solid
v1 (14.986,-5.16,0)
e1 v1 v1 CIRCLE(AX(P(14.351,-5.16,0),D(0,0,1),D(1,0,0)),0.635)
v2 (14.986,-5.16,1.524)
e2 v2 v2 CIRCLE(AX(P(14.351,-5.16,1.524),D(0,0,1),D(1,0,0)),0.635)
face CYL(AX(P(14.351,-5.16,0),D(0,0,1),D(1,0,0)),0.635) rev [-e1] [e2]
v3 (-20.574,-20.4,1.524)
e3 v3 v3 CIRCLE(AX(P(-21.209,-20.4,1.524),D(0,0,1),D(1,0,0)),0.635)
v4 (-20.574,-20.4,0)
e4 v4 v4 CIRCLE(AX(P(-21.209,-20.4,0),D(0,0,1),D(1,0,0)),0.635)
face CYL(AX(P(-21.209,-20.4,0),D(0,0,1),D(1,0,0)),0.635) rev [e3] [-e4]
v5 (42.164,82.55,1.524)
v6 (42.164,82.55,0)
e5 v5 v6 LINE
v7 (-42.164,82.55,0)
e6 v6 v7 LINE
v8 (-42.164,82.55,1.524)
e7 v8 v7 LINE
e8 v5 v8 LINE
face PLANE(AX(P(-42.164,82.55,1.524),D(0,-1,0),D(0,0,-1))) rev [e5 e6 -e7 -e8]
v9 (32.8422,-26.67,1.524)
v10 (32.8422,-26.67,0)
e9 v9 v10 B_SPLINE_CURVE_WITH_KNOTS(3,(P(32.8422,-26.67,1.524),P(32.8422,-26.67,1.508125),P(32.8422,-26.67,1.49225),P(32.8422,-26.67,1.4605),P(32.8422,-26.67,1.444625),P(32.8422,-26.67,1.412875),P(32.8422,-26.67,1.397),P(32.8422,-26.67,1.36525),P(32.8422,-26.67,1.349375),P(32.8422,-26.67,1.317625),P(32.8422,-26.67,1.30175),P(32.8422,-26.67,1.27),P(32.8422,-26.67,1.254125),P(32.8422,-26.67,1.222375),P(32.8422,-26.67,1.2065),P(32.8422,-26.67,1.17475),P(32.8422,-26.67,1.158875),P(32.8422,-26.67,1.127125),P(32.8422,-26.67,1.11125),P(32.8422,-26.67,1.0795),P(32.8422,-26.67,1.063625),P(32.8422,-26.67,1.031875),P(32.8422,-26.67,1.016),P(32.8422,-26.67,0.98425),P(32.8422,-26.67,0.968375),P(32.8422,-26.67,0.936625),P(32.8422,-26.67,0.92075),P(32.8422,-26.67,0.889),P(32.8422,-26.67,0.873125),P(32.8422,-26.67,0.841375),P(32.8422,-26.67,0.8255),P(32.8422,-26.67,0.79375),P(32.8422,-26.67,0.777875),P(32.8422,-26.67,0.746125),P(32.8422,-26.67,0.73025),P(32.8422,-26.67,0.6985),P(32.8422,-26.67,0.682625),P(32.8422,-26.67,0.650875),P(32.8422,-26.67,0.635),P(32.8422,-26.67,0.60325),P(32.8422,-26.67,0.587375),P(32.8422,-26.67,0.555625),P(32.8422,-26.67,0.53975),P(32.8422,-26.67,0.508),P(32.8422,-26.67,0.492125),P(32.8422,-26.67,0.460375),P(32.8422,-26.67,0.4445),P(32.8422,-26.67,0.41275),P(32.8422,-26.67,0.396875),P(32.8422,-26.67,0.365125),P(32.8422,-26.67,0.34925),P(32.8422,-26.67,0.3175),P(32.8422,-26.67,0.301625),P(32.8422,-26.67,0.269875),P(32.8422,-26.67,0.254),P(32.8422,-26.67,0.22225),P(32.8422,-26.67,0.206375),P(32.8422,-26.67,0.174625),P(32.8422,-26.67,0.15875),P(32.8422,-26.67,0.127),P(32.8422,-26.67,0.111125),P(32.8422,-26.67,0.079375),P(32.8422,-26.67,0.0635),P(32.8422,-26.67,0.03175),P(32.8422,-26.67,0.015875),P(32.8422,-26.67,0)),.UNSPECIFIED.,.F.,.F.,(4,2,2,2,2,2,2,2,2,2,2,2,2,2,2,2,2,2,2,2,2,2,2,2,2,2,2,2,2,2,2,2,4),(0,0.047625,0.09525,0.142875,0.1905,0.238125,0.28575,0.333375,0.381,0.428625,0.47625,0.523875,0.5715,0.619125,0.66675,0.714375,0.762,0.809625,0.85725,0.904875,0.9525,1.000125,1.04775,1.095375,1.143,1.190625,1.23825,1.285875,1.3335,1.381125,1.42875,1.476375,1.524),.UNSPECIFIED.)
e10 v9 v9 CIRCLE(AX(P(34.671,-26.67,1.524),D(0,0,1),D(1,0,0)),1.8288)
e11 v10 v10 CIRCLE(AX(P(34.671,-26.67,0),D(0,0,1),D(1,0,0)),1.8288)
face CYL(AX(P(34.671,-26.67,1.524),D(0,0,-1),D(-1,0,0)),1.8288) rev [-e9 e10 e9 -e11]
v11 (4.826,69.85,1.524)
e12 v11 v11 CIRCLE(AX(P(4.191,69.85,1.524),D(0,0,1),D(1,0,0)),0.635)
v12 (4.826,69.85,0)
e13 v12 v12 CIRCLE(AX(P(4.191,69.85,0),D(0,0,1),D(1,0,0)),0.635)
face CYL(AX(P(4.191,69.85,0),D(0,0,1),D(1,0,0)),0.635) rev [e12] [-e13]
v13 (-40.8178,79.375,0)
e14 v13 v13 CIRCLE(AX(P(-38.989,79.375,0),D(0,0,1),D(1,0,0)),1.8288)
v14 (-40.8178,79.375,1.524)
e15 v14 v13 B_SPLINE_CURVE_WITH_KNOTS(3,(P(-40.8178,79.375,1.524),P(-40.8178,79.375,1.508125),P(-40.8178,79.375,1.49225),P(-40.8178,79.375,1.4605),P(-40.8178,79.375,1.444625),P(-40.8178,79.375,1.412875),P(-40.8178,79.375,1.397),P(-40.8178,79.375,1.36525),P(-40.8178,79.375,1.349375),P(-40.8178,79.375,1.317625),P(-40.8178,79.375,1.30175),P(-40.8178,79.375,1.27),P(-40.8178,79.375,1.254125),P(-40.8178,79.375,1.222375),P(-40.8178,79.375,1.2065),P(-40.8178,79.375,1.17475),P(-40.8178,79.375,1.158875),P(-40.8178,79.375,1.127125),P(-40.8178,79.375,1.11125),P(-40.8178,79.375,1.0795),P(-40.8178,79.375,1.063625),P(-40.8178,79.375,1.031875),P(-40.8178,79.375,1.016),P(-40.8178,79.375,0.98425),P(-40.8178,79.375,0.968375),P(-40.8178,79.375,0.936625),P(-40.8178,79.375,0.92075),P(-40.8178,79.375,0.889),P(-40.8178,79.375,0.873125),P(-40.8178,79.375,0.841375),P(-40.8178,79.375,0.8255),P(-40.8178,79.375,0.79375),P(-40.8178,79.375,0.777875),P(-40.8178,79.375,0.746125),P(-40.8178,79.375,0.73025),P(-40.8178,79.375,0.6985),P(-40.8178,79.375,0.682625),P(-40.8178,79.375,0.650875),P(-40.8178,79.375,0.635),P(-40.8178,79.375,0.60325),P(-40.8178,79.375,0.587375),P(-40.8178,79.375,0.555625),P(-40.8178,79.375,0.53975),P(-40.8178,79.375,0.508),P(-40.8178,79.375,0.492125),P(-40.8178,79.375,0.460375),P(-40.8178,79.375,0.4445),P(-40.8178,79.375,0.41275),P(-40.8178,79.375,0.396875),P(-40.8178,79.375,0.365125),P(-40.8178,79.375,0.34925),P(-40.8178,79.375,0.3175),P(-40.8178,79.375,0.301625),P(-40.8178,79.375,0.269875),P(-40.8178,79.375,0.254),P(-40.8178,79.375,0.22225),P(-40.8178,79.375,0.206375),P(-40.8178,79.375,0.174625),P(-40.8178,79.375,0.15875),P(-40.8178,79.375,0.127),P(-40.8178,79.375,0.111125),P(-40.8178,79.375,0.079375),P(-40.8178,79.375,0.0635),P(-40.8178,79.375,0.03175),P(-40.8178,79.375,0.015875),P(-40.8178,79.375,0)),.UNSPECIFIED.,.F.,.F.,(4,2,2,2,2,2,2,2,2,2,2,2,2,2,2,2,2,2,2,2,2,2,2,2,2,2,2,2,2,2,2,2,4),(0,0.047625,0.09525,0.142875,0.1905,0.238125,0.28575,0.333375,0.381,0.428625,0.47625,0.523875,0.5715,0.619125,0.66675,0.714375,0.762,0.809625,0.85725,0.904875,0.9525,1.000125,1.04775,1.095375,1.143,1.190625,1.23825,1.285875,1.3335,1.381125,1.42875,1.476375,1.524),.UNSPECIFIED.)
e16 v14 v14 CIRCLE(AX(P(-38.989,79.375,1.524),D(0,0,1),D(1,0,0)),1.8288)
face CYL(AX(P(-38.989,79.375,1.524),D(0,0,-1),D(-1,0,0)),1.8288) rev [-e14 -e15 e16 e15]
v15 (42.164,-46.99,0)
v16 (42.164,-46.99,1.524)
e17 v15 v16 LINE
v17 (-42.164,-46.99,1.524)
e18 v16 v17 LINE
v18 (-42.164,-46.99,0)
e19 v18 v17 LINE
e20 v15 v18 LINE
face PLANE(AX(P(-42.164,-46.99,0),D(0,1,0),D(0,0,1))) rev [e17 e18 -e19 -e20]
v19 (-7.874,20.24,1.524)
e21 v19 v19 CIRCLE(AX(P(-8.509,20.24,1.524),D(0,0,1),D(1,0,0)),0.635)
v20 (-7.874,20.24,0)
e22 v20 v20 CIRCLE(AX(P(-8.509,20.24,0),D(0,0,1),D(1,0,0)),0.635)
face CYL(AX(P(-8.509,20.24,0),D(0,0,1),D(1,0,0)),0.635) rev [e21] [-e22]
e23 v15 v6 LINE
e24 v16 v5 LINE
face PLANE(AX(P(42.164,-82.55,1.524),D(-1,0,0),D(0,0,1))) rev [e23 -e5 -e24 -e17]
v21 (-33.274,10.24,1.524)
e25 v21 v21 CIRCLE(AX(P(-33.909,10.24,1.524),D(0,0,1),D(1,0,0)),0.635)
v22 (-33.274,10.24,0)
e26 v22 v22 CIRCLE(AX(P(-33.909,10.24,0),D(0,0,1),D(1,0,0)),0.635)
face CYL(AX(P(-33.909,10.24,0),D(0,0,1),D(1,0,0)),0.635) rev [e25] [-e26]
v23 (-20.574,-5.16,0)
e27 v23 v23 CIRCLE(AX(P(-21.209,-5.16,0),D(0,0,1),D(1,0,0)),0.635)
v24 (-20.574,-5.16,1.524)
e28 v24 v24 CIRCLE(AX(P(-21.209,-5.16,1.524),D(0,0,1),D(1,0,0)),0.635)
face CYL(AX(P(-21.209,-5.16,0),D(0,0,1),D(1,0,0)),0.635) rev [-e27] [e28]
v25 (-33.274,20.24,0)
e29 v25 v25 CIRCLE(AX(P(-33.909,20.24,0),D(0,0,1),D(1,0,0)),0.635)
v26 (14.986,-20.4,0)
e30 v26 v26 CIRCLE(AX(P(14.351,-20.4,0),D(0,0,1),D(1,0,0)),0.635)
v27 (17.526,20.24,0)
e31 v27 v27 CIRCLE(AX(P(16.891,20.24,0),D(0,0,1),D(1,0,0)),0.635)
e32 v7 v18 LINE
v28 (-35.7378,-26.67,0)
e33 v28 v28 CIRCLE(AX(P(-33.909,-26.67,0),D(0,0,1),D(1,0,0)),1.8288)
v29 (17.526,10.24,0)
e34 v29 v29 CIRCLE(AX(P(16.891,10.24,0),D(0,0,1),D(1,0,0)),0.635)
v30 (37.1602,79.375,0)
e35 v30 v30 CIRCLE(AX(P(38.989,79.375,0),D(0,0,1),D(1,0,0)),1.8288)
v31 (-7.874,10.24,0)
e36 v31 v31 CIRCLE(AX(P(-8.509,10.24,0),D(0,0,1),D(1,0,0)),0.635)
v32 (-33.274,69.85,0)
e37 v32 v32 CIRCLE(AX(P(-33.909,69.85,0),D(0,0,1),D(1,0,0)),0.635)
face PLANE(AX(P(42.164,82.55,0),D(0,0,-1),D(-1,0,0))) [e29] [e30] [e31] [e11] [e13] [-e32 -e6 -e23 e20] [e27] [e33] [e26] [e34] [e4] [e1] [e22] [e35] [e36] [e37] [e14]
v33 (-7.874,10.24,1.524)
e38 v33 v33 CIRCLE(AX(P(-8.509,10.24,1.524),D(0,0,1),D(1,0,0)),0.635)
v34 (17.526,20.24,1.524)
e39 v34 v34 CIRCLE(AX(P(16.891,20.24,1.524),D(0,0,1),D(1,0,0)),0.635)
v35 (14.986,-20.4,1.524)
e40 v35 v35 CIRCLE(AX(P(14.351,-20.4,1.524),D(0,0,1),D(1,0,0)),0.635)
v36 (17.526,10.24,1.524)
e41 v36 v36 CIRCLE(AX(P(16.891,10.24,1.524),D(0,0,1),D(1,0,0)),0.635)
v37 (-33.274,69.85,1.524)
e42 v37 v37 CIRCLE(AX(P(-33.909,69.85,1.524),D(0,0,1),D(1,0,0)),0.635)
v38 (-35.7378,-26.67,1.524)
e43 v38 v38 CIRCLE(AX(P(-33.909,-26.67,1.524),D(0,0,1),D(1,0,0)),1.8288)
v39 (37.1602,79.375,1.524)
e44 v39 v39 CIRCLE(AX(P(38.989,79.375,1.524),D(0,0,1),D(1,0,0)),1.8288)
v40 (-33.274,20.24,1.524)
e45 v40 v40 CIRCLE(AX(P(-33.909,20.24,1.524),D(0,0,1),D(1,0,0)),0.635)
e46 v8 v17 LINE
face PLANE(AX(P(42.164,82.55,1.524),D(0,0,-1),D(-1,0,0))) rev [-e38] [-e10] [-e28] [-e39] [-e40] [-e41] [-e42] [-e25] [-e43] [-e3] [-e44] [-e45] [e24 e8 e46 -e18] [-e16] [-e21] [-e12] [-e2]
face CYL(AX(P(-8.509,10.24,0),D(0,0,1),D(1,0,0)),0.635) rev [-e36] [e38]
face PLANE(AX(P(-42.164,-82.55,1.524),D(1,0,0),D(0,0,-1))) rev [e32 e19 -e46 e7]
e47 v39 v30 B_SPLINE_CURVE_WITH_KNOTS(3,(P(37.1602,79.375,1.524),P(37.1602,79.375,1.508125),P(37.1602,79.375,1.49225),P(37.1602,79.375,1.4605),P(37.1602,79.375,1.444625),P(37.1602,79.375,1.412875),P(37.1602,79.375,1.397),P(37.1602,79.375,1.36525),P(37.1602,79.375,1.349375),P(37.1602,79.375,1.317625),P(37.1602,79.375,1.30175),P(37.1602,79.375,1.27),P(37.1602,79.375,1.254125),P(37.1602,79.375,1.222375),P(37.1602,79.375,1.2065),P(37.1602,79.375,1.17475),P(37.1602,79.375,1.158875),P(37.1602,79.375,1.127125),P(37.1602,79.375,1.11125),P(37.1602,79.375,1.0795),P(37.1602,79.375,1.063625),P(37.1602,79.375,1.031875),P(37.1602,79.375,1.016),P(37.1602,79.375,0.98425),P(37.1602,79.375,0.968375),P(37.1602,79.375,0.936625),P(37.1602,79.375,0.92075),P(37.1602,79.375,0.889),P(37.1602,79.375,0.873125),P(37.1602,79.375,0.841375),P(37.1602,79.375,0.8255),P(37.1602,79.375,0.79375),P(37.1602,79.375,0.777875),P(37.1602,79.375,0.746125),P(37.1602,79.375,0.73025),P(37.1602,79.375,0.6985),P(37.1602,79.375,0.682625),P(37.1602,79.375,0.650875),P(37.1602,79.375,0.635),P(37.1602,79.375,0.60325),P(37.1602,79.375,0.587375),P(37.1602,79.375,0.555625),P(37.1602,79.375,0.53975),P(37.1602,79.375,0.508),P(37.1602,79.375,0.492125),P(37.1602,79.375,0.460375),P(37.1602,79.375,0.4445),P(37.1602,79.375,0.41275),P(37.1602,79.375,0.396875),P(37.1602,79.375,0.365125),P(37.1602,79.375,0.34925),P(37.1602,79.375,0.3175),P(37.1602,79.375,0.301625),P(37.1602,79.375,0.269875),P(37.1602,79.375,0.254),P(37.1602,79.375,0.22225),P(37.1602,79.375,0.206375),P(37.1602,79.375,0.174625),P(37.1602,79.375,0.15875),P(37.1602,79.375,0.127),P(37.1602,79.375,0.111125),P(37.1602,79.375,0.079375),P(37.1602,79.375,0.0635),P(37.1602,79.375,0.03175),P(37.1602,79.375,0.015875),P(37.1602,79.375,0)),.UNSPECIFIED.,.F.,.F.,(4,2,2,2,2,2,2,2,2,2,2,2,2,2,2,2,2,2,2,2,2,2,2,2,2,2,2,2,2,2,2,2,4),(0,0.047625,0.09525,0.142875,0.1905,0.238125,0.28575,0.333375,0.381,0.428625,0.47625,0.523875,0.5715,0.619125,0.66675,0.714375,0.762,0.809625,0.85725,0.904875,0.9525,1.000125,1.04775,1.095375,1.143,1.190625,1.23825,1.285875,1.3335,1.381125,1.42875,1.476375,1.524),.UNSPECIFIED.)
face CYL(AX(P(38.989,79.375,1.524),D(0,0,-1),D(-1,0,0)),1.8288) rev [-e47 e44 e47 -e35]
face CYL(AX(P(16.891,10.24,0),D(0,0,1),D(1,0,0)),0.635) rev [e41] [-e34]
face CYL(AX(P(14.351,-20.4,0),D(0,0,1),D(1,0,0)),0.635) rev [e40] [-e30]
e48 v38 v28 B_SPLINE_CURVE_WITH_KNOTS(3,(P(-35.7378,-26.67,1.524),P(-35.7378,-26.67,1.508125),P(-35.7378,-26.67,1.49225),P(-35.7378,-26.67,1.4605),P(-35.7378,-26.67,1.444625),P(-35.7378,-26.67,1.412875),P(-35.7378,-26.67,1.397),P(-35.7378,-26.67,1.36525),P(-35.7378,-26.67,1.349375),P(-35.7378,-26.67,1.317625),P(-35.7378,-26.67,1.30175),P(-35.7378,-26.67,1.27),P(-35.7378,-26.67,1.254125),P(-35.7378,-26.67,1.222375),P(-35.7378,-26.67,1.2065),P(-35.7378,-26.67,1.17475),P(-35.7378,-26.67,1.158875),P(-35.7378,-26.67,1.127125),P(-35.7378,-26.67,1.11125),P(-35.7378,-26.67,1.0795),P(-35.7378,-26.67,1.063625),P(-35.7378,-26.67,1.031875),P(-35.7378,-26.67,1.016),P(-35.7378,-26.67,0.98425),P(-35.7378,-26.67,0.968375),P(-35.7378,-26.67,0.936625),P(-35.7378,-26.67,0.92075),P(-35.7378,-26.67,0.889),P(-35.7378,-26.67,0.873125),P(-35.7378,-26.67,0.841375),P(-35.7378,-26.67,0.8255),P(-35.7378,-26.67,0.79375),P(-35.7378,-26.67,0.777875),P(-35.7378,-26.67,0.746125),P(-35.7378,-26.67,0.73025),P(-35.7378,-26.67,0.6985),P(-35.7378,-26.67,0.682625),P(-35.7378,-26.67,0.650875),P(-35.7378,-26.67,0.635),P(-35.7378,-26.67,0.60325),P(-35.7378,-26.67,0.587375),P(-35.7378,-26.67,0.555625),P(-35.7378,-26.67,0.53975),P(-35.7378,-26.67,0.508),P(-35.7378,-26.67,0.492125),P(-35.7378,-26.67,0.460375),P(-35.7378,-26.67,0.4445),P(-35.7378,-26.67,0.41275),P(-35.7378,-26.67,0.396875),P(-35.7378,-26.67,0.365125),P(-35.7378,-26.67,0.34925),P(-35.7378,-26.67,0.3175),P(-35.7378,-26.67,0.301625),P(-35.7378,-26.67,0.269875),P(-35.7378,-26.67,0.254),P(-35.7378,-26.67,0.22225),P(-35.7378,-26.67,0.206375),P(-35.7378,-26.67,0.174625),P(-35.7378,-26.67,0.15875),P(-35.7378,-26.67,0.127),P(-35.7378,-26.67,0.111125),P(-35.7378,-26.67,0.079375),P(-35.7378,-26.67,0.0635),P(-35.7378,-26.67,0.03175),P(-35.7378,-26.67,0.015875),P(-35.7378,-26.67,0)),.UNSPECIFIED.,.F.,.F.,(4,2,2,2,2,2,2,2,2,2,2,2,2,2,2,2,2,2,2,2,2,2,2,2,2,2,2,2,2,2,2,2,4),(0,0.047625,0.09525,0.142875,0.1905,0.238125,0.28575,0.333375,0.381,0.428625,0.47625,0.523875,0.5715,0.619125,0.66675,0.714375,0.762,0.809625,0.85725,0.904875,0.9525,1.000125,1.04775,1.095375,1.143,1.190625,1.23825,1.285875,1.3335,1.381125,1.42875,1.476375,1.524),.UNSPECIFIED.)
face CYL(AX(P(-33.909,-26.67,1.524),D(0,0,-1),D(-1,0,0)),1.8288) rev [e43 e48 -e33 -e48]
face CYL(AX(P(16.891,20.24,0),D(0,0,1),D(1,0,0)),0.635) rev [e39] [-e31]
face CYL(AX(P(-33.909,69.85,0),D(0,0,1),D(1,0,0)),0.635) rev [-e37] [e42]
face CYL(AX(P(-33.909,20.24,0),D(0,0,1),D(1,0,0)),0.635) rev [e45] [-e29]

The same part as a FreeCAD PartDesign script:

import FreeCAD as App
import Part
import Sketcher
from FreeCAD import Vector
Q = App.Units.Quantity

doc = App.newDocument("Part")
body = doc.addObject("PartDesign::Body", "Body")

# Sketch on XY plane
sketch1 = body.newObject("Sketcher::SketchObject", "Sketch")
sketch1.AttachmentSupport = (doc.getObject("XY_Plane"), [""])
sketch1.MapMode = "FlatFace"
sketch1.addGeometry([
    Part.LineSegment(Vector(-42.2, 82.5, 0), Vector(-42.2, -82.5, 0)),  # 0
    Part.LineSegment(Vector(-42.2, -82.5, 0), Vector(42.2, -82.5, 0)),  # 1
    Part.LineSegment(Vector(42.2, -82.5, 0), Vector(42.2, 82.5, 0)),  # 2
    Part.LineSegment(Vector(42.2, 82.5, 0), Vector(-42.2, 82.5, 0)),  # 3
    Part.Circle(Vector(-39, -79.4, 0), Vector(0, 0, 1), 1.8),  # 4
    Part.Circle(Vector(-33.9, -26.7, 0), Vector(0, 0, 1), 1.8),  # 5
    Part.Circle(Vector(39, -79.4, 0), Vector(0, 0, 1), 1.8),  # 6
    Part.Circle(Vector(34.7, -26.7, 0), Vector(0, 0, 1), 1.8),  # 7
    Part.Circle(Vector(-39, 79.4, 0), Vector(0, 0, 1), 1.8),  # 8
    Part.Circle(Vector(39, 79.4, 0), Vector(0, 0, 1), 1.8),  # 9
], False)
sketch1.addConstraint([
    Sketcher.Constraint("Coincident", 0, 2, 1, 1),
    Sketcher.Constraint("Coincident", 1, 2, 2, 1),
    Sketcher.Constraint("Coincident", 2, 2, 3, 1),
    Sketcher.Constraint("Coincident", 3, 2, 0, 1),
    Sketcher.Constraint("Vertical", 0),
    Sketcher.Constraint("Horizontal", 1),
    Sketcher.Constraint("Vertical", 2),
    Sketcher.Constraint("Horizontal", 3),
    Sketcher.Constraint("Equal", 4, 5),
    Sketcher.Constraint("Equal", 5, 6),
    Sketcher.Constraint("Equal", 6, 7),
    Sketcher.Constraint("Equal", 7, 8),
    Sketcher.Constraint("Equal", 8, 9),
    Sketcher.Constraint("Symmetric", 6, 3, 8, 3, -1, 1),
    Sketcher.Constraint("Symmetric", 4, 3, 9, 3, -1, 1),
    Sketcher.Constraint("Symmetric", 0, 2, 2, 2, -1, 1),
    Sketcher.Constraint("Symmetric", 4, 3, 6, 3, -2),
    Sketcher.Constraint("Horizontal", 5, 3, 7, 3),
    Sketcher.Constraint("Diameter", 4, Q("0.144 in")),
    Sketcher.Constraint("DistanceY", 0, 2, 0, 1, Q("6.5 in")),
    Sketcher.Constraint("DistanceX", 1, 1, 1, 2, Q("3.32 in")),
    Sketcher.Constraint("DistanceX", 4, 3, 5, 3, Q("0.2 in")),
    Sketcher.Constraint("DistanceX", 5, 3, 7, 3, Q("2.7 in")),
    Sketcher.Constraint("DistanceY", 0, 2, 5, 3, Q("2.2 in")),
    Sketcher.Constraint("DistanceX", 4, 3, 6, 3, Q("3.07 in")),
    Sketcher.Constraint("DistanceY", 4, 3, 8, 3, Q("6.25 in")),
])
pad1 = body.newObject("PartDesign::Pad", "Pad")
pad1.Profile = sketch1
pad1.Length = Q("0.06 in")

# Sketch on XY plane
sketch2 = body.newObject("Sketcher::SketchObject", "Sketch001")
sketch2.AttachmentSupport = (doc.getObject("XY_Plane"), [""])
sketch2.MapMode = "FlatFace"
sketch2.AttachmentOffset = App.Placement(Vector(0, 0, 0.06 * 25.4), App.Rotation())
sketch2.addGeometry([
    Part.Circle(Vector(-33.9, 69.8, 0), Vector(0, 0, 1), 0.6),
    Part.Circle(Vector(4.2, 69.8, 0), Vector(0, 0, 1), 0.6),
], False)
sketch2.addConstraint([
    Sketcher.Constraint("Equal", 0, 1),
    Sketcher.Constraint("Horizontal", 0, 3, 1, 3),
    Sketcher.Constraint("Diameter", 0, Q("0.05 in")),
    Sketcher.Constraint("DistanceX", 0, 3, 1, 3, Q("1.5 in")),
    Sketcher.Constraint("DistanceY", -1, 1, 0, 3, Q("2.75 in")),
    Sketcher.Constraint("DistanceX", 0, 3, -1, 1, Q("1.335 in")),
])
pocket1 = body.newObject("PartDesign::Pocket", "Pocket")
pocket1.Profile = sketch2
pocket1.Type = "ThroughAll"

# Sketch on XY plane
sketch3 = body.newObject("Sketcher::SketchObject", "Sketch002")
sketch3.AttachmentSupport = (doc.getObject("XY_Plane"), [""])
sketch3.MapMode = "FlatFace"
sketch3.AttachmentOffset = App.Placement(Vector(0, 0, 0.06 * 25.4), App.Rotation())
sketch3.addGeometry([
    Part.Circle(Vector(-33.9, 20.2, 0), Vector(0, 0, 1), 0.6),  # 0
    Part.Circle(Vector(-33.9, 10.2, 0), Vector(0, 0, 1), 0.6),  # 1
    Part.Circle(Vector(-8.5, 10.2, 0), Vector(0, 0, 1), 0.6),  # 2
    Part.Circle(Vector(-8.5, 20.2, 0), Vector(0, 0, 1), 0.6),  # 3
    Part.Circle(Vector(16.9, 10.2, 0), Vector(0, 0, 1), 0.6),  # 4
    Part.Circle(Vector(16.9, 20.2, 0), Vector(0, 0, 1), 0.6),  # 5
], False)
sketch3.addConstraint([
    Sketcher.Constraint("Equal", 0, 1),
    Sketcher.Constraint("Equal", 1, 2),
    Sketcher.Constraint("Equal", 2, 3),
    Sketcher.Constraint("Equal", 3, 4),
    Sketcher.Constraint("Equal", 4, 5),
    Sketcher.Constraint("Horizontal", 1, 3, 2, 3),
    Sketcher.Constraint("Horizontal", 0, 3, 3, 3),
    Sketcher.Constraint("Horizontal", 2, 3, 4, 3),
    Sketcher.Constraint("Horizontal", 3, 3, 5, 3),
    Sketcher.Constraint("Vertical", 0, 3, 1, 3),
    Sketcher.Constraint("Vertical", 2, 3, 3, 3),
    Sketcher.Constraint("Vertical", 4, 3, 5, 3),
    Sketcher.Constraint("Diameter", 0, Q("0.05 in")),
    Sketcher.Constraint("DistanceX", 1, 3, 2, 3, Q("1 in")),
    Sketcher.Constraint("DistanceX", 2, 3, 4, 3, Q("1 in")),
    Sketcher.Constraint("DistanceX", 0, 3, -1, 1, Q("1.335 in")),
    Sketcher.Constraint("DistanceY", -1, 1, 0, 3, Q("20.24 mm")),
    Sketcher.Constraint("DistanceY", -1, 1, 1, 3, Q("10.24 mm")),
])
pocket2 = body.newObject("PartDesign::Pocket", "Pocket001")
pocket2.Profile = sketch3
pocket2.Type = "ThroughAll"

# Sketch on XY plane
sketch4 = body.newObject("Sketcher::SketchObject", "Sketch003")
sketch4.AttachmentSupport = (doc.getObject("XY_Plane"), [""])
sketch4.MapMode = "FlatFace"
sketch4.AttachmentOffset = App.Placement(Vector(0, 0, 0.06 * 25.4), App.Rotation())
sketch4.addGeometry([
    Part.Circle(Vector(-21.2, -5.2, 0), Vector(0, 0, 1), 0.6),
    Part.Circle(Vector(14.4, -5.2, 0), Vector(0, 0, 1), 0.6),
    Part.Circle(Vector(-21.2, -20.4, 0), Vector(0, 0, 1), 0.6),
    Part.Circle(Vector(14.4, -20.4, 0), Vector(0, 0, 1), 0.6),
], False)
sketch4.addConstraint([
    Sketcher.Constraint("Equal", 0, 1),
    Sketcher.Constraint("Equal", 1, 2),
    Sketcher.Constraint("Equal", 2, 3),
    Sketcher.Constraint("Horizontal", 0, 3, 1, 3),
    Sketcher.Constraint("Horizontal", 2, 3, 3, 3),
    Sketcher.Constraint("Vertical", 0, 3, 2, 3),
    Sketcher.Constraint("Vertical", 1, 3, 3, 3),
    Sketcher.Constraint("Diameter", 0, Q("0.05 in")),
    Sketcher.Constraint("DistanceX", 0, 3, 1, 3, Q("1.4 in")),
    Sketcher.Constraint("DistanceY", 2, 3, 0, 3, Q("0.6 in")),
    Sketcher.Constraint("DistanceX", 0, 3, -1, 1, Q("0.835 in")),
    Sketcher.Constraint("DistanceY", 0, 3, -1, 1, Q("5.16 mm")),
])
pocket3 = body.newObject("PartDesign::Pocket", "Pocket002")
pocket3.Profile = sketch4
pocket3.Type = "ThroughAll"

# Sketch on XY plane
sketch5 = body.newObject("Sketcher::SketchObject", "Sketch004")
sketch5.AttachmentSupport = (doc.getObject("XY_Plane"), [""])
sketch5.MapMode = "FlatFace"
sketch5.AttachmentOffset = App.Placement(Vector(0, 0, 0.06 * 25.4), App.Rotation())
sketch5.addGeometry([
    Part.LineSegment(Vector(-42, -47, 0), Vector(-42, -83, 0)),
    Part.LineSegment(Vector(-42, -83, 0), Vector(42, -83, 0)),
    Part.LineSegment(Vector(42, -83, 0), Vector(42, -47, 0)),
    Part.LineSegment(Vector(42, -47, 0), Vector(-42, -47, 0)),
], False)
sketch5.addConstraint([
    Sketcher.Constraint("Coincident", 0, 2, 1, 1),
    Sketcher.Constraint("Coincident", 1, 2, 2, 1),
    Sketcher.Constraint("Coincident", 2, 2, 3, 1),
    Sketcher.Constraint("Coincident", 3, 2, 0, 1),
    Sketcher.Constraint("Vertical", 0),
    Sketcher.Constraint("Horizontal", 1),
    Sketcher.Constraint("Vertical", 2),
    Sketcher.Constraint("Horizontal", 3),
    Sketcher.Constraint("DistanceY", 0, 2, 0, 1, Q("1.4 in")),
    Sketcher.Constraint("DistanceX", 1, 1, 1, 2, Q("3.32 in")),
    Sketcher.Constraint("DistanceX", 0, 2, -1, 1, Q("1.66 in")),
    Sketcher.Constraint("DistanceY", 0, 2, -1, 1, Q("3.25 in")),
])
pocket4 = body.newObject("PartDesign::Pocket", "Pocket003")
pocket4.Profile = sketch5
pocket4.Type = "ThroughAll"

doc.recompute()
